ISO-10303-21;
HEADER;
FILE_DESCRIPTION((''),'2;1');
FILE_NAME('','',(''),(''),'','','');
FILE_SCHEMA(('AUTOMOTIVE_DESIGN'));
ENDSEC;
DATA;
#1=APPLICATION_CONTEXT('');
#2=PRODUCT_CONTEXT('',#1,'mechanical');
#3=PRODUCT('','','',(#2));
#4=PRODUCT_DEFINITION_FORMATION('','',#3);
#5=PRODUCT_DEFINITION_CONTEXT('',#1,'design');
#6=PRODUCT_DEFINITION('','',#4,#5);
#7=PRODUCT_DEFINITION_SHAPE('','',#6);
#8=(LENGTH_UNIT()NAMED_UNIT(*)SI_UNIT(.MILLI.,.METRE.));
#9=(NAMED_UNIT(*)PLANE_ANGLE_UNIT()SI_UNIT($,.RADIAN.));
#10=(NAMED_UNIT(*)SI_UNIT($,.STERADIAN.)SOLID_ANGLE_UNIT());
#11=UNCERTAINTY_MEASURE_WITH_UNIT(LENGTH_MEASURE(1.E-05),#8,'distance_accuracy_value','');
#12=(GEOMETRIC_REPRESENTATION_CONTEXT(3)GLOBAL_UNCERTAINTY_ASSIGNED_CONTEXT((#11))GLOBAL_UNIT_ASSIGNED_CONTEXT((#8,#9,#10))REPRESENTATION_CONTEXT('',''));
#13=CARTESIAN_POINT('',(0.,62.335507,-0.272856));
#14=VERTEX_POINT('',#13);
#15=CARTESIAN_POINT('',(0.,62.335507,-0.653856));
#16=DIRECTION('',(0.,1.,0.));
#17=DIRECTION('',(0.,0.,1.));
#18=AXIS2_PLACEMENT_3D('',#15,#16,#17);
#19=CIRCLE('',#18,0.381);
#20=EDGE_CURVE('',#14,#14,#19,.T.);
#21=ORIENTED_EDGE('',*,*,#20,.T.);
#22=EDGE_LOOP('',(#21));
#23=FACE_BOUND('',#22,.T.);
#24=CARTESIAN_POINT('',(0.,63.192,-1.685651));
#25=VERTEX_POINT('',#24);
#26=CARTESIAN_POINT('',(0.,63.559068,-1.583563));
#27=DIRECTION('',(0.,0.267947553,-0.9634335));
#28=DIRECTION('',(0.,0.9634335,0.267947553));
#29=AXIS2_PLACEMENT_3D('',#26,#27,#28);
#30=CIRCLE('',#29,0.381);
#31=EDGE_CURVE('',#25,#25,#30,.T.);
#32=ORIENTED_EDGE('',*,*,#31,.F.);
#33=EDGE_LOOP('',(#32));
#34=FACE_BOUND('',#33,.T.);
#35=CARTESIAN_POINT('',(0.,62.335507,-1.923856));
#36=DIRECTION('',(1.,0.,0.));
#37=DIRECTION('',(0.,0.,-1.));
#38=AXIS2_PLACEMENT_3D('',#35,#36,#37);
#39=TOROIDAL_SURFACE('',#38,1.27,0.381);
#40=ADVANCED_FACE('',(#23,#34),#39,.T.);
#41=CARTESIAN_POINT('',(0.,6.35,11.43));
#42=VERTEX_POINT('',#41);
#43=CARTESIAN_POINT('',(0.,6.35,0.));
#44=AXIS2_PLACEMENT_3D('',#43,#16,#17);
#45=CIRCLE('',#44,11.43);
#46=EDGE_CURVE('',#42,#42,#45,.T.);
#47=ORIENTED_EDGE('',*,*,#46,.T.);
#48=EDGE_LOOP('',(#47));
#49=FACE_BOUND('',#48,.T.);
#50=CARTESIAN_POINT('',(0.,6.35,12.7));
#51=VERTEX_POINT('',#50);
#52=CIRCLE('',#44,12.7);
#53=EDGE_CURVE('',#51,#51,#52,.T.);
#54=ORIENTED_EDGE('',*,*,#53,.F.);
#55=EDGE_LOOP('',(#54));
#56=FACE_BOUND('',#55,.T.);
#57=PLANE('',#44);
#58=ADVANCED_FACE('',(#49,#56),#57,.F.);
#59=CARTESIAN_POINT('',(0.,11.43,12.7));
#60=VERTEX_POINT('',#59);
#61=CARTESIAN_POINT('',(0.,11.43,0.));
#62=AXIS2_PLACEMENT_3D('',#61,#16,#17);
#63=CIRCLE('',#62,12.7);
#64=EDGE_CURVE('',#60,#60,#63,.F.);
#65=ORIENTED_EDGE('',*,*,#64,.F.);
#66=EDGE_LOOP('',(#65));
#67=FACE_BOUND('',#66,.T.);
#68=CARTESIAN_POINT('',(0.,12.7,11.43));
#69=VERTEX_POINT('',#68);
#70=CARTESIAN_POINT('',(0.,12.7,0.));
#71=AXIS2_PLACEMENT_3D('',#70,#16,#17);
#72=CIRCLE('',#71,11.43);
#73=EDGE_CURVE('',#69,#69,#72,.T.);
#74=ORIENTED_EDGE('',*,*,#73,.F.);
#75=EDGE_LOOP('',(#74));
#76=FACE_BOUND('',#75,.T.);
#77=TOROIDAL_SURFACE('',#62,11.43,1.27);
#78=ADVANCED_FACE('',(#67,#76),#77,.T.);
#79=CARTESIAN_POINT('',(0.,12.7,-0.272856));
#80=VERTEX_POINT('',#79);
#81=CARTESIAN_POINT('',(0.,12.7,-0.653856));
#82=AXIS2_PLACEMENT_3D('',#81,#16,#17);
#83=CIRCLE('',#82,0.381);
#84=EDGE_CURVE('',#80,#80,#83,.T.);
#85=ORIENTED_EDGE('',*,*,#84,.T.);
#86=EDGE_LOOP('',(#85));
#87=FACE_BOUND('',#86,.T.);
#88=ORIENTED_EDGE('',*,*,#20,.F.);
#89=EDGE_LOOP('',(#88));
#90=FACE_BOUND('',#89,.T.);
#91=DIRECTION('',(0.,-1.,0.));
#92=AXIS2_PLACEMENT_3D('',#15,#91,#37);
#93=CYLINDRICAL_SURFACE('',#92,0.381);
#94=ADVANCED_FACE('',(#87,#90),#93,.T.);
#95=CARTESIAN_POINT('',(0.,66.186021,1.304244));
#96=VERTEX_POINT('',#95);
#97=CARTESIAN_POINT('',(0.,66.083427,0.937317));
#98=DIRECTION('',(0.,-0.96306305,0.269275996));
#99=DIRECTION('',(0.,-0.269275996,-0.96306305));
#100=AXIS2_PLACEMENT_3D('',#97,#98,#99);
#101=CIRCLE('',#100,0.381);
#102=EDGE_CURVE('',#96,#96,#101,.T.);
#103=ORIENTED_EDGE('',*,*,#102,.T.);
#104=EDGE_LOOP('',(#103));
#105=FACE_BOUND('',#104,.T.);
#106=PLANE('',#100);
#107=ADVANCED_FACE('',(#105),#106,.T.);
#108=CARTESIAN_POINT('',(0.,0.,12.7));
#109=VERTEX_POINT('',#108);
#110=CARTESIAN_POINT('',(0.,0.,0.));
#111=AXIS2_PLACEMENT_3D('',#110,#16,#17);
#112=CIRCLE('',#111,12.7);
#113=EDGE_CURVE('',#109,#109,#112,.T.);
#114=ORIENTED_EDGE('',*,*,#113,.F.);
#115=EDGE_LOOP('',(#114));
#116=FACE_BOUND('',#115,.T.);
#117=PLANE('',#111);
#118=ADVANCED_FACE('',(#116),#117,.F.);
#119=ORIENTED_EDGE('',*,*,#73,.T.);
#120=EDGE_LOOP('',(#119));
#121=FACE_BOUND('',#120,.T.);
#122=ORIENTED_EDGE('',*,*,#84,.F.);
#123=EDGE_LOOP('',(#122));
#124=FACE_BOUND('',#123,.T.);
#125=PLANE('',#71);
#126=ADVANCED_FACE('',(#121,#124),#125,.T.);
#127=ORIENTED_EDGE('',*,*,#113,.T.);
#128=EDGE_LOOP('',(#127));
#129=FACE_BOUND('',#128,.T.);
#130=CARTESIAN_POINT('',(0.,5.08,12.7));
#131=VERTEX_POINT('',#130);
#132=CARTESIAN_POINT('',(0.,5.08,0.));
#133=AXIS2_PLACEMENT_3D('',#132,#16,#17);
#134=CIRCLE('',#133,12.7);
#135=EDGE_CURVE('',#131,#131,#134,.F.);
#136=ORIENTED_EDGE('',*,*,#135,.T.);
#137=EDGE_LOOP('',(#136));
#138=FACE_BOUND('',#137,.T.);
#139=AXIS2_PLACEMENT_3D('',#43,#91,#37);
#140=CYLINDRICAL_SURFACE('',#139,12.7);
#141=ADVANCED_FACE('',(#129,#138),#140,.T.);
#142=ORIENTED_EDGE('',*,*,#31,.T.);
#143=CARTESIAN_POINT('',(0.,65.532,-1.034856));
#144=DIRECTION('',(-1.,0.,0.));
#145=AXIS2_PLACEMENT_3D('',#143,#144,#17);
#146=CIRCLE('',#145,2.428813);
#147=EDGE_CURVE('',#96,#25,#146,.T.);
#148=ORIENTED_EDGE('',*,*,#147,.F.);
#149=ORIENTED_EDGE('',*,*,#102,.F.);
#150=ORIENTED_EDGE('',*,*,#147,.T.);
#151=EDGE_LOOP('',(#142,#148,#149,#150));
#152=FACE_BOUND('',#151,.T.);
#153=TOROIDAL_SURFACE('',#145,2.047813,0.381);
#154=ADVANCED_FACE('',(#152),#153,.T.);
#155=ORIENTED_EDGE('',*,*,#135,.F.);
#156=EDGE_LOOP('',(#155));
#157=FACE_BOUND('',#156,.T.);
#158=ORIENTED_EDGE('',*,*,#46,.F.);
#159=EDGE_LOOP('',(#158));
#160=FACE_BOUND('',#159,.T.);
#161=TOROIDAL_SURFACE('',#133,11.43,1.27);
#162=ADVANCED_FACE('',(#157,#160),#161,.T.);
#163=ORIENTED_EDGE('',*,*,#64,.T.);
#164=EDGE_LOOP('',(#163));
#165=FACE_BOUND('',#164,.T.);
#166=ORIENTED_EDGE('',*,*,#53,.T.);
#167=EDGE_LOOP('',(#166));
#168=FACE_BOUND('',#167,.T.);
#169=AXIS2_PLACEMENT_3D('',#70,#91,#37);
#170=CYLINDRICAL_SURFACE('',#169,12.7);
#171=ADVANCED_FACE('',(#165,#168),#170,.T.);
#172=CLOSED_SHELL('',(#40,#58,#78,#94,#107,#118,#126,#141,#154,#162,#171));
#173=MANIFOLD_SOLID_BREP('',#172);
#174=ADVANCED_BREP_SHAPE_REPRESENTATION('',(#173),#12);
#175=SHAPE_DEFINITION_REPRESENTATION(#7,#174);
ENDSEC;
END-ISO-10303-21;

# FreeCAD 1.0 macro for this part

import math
import FreeCAD as App
import Part
import Sketcher

V = App.Vector
Q = App.Units.Quantity


def edges_at(feature, points):
    """Names of the edges that pass closest to the given points."""
    edges = feature.Shape.Edges
    near = lambda p: min(range(len(edges)), key=lambda i: edges[i].distToShape(Part.Vertex(*p))[0])
    return sorted({f"Edge{near(p) + 1}" for p in points})

doc = App.newDocument("Part")
body = doc.addObject("PartDesign::Body", "Body")

sketch1 = body.newObject("Sketcher::SketchObject", "Sketch")
sketch1.AttachmentSupport = (doc.getObject("XZ_Plane"), [""])
sketch1.MapMode = "FlatFace"
sketch1.addGeometry(Part.Circle(V(0, 0, 0), V(0, 0, 1), 13), False)
sketch1.addConstraint([
    Sketcher.Constraint("Coincident", 0, 3, -1, 1),
    Sketcher.Constraint("Diameter", 0, Q("1 in")),
])
pad1 = body.newObject("PartDesign::Pad", "Pad")
pad1.Profile = sketch1
pad1.Length = Q("0.25 in")
pad1.Reversed = True
doc.recompute()

fillet = body.newObject("PartDesign::Fillet", "Fillet")
fillet.Base = (pad1, edges_at(pad1, [(-12.7, 6.35, 0)]))
fillet.Radius = Q("0.05 in")

sketch2 = body.newObject("Sketcher::SketchObject", "Sketch001")
sketch2.AttachmentSupport = (doc.getObject("XZ_Plane"), [""])
sketch2.MapMode = "FlatFace"
sketch2.AttachmentOffset = App.Placement(V(0, 0, -0.25 * 25.4), App.Rotation())
sketch2.addGeometry(Part.Circle(V(0, 0, 0), V(0, 0, 1), 13), False)
sketch2.addConstraint([
    Sketcher.Constraint("Coincident", 0, 3, -1, 1),
    Sketcher.Constraint("Diameter", 0, Q("1 in")),
])
pad2 = body.newObject("PartDesign::Pad", "Pad001")
pad2.Profile = sketch2
pad2.Length = Q("0.25 in")
pad2.Reversed = True
doc.recompute()

fillet2 = body.newObject("PartDesign::Fillet", "Fillet001")
fillet2.Base = (pad2, edges_at(pad2, [(-12.7, 12.7, 0)]))
fillet2.Radius = Q("0.05 in")

sketch3 = body.newObject("Sketcher::SketchObject", "Sketch002")
sketch3.AttachmentSupport = (doc.getObject("XZ_Plane"), [""])
sketch3.MapMode = "FlatFace"
sketch3.AttachmentOffset = App.Placement(V(0, 0, -0.5 * 25.4), App.Rotation())
sketch3.addGeometry(Part.Circle(V(0, -0.65, 0), V(0, 0, 1), 0.38), False)
sketch3.addConstraint([
    Sketcher.Constraint("PointOnObject", 0, 3, -2),
    Sketcher.Constraint("Diameter", 0, Q("0.03 in")),
    Sketcher.Constraint("DistanceY", 0, 3, -1, 1, 0.653856),
])

sketch4 = body.newObject("Sketcher::SketchObject", "Sketch003")
sketch4.AttachmentSupport = (doc.getObject("YZ_Plane"), [""])
sketch4.MapMode = "FlatFace"
sketch4.addGeometry([
    Part.LineSegment(V(12.7, -0.7, 0), V(62.3, -0.7, 0)),
    Part.ArcOfCircle(Part.Circle(V(62.3, -1.9, 0), V(0, 0, 1), 1.3), math.radians(16), math.radians(90)),
    Part.ArcOfCircle(Part.Circle(V(65.5, -1, 0), V(0, 0, 1), 2), math.radians(-164), math.radians(74)),
], False)
sketch4.addConstraint([
    Sketcher.Constraint("Tangent", 0, 2, 1, 2),
    Sketcher.Constraint("Tangent", 1, 1, 2, 1),
    Sketcher.Constraint("Horizontal", 0),
    Sketcher.Constraint("Radius", 1, Q("0.05 in")),
    Sketcher.Constraint("DistanceX", -1, 1, 0, 1, Q("0.5 in")),
    Sketcher.Constraint("DistanceX", -1, 1, 2, 3, Q("2.58 in")),
    Sketcher.Constraint("DistanceY", 1, 3, 2, 3, Q("0.035 in")),
    Sketcher.Constraint("Radius", 2, 2.047813),
    Sketcher.Constraint("DistanceX", 1, 1, 2, 2, 2.524359),
    Sketcher.Constraint("DistanceY", 1, 3, -1, 1, 1.923856),
])
doc.recompute()

additivepipe = body.newObject("PartDesign::AdditivePipe", "AdditivePipe")
additivepipe.Profile = sketch3
additivepipe.Spine = (sketch4, ["Edge1", "Edge2", "Edge3"])

doc.recompute()
